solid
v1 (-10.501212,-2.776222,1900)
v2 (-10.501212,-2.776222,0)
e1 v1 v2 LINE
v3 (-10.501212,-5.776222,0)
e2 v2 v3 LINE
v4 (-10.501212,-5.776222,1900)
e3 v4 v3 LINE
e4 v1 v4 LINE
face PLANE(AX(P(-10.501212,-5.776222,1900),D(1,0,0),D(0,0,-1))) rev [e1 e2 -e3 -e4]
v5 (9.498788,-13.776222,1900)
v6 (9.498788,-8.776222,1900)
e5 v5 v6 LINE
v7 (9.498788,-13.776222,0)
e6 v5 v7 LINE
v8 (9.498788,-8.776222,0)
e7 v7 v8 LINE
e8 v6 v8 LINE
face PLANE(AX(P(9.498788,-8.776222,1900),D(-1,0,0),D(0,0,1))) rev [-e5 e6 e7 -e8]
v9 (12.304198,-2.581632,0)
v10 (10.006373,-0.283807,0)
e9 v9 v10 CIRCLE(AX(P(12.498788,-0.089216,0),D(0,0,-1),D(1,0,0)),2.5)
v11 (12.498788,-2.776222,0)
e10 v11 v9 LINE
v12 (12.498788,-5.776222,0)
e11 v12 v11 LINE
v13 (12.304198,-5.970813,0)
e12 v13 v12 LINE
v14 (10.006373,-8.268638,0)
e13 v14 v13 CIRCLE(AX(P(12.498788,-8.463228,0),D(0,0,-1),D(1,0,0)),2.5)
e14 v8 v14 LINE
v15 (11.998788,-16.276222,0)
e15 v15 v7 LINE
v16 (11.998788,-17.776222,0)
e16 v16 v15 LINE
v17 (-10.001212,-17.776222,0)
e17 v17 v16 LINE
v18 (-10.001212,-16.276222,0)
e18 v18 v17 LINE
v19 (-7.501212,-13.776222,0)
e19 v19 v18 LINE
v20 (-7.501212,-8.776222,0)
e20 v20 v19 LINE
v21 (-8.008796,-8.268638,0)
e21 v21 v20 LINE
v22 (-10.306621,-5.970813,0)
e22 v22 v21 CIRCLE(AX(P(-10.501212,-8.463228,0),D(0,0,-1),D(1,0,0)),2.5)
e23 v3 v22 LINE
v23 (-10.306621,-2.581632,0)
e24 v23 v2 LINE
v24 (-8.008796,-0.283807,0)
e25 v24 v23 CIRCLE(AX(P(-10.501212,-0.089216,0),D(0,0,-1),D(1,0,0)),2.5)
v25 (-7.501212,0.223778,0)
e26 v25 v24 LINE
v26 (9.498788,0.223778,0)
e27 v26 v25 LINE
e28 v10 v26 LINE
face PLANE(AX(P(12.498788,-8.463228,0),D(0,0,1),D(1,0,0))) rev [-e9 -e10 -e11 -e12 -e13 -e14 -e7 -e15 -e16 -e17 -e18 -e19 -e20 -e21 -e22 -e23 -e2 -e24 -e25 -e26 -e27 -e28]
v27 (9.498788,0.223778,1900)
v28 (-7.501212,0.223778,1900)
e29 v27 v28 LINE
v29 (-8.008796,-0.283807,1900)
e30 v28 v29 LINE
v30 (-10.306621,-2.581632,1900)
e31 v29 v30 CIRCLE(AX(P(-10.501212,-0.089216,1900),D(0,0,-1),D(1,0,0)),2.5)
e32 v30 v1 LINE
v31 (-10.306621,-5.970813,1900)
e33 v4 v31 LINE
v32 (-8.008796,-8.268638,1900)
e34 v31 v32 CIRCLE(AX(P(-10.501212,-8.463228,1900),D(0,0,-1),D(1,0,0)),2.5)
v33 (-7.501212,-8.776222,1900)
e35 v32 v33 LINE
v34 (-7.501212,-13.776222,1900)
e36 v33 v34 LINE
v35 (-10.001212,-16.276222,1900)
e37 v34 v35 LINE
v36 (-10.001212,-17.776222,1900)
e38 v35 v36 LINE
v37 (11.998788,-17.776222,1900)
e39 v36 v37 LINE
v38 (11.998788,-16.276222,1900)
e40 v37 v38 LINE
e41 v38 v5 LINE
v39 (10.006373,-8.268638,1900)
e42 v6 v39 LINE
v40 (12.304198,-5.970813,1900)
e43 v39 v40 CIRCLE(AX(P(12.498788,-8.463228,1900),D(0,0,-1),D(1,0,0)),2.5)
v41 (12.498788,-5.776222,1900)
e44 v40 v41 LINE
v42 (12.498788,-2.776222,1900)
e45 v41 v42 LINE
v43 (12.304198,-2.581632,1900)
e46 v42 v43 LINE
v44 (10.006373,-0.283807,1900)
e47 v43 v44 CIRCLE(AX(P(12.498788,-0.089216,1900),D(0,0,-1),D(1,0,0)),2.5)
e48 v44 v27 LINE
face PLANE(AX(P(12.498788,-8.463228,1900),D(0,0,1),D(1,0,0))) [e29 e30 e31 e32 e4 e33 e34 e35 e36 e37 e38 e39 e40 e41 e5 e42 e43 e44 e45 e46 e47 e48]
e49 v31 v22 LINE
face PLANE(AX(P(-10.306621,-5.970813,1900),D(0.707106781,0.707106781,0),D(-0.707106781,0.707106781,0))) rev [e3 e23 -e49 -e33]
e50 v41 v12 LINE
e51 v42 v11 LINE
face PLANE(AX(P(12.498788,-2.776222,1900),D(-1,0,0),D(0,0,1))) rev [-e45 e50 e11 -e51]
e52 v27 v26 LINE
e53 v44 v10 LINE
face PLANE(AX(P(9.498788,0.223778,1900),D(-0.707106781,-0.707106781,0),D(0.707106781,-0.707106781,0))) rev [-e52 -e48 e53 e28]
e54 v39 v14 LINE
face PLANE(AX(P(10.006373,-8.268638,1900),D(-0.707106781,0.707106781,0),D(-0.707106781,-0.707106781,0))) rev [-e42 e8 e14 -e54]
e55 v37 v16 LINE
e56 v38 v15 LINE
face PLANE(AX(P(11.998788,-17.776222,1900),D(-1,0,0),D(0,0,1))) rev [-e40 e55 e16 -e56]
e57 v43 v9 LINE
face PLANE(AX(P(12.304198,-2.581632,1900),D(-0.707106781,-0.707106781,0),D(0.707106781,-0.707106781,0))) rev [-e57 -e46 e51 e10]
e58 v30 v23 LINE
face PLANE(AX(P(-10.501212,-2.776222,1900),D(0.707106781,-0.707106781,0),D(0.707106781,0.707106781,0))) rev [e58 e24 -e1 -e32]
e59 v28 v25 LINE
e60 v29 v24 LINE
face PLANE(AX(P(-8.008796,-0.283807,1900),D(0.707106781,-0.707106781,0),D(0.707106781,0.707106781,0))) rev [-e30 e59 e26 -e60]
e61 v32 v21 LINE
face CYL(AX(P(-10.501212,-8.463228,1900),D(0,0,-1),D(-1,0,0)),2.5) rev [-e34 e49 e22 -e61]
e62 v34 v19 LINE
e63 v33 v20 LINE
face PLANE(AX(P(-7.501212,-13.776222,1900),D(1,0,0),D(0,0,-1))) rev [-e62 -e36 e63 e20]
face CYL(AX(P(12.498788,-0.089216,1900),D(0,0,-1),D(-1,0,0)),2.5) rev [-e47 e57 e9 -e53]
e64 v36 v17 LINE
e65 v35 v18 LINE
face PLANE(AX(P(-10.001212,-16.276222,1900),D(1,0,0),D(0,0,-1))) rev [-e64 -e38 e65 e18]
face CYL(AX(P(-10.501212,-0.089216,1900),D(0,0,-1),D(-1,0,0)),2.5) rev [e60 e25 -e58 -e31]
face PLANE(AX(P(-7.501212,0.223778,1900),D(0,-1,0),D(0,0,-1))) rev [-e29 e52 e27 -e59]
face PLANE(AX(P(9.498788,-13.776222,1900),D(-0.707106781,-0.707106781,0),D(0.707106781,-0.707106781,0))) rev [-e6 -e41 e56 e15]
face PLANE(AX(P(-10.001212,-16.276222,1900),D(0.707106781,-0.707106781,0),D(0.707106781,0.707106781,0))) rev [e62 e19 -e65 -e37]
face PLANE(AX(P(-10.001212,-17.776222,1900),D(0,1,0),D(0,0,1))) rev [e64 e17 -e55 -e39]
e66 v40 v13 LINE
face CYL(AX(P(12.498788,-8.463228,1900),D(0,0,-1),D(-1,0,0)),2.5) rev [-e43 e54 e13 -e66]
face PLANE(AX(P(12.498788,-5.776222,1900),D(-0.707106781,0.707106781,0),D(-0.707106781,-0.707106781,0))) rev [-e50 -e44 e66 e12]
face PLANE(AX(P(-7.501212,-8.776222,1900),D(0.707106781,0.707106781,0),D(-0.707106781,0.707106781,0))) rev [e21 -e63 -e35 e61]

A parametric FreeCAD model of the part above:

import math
import FreeCAD as App
import Part
import Sketcher

doc = App.newDocument("Part")
params = doc.addObject("Spreadsheet::Sheet", "Params")
for row, (alias, value) in enumerate([
    ("sketch1_radius", "2.5 mm"),
    ("sketch1_width", "22 mm"),
    ("sketch1_width2", "17 mm"),
    ("sketch1_height", "5 mm"),
    ("sketch1_height2", "3 mm"),
    ("pad1_length", "1900 mm"),
], start=1):
    params.set(f"A{row}", alias)
    params.set(f"B{row}", "=" + value)
    params.setAlias(f"B{row}", alias)

body = doc.addObject("PartDesign::Body", "Body")

# Sketch on XY plane
sketch1 = doc.addObject("Sketcher::SketchObject", "Sketch")
body.addObject(sketch1)
sketch1.AttachmentSupport = (doc.XY_Plane, [""])
sketch1.MapMode = "FlatFace"
sketch1.addGeometry(Part.LineSegment(App.Vector(-7.501212, -13.776222, 0), App.Vector(-10.001212, -16.276222, 0)), False)
sketch1.addGeometry(Part.LineSegment(App.Vector(-10.001212, -16.276222, 0), App.Vector(-10.001212, -17.776222, 0)), False)
sketch1.addGeometry(Part.LineSegment(App.Vector(-10.001212, -17.776222, 0), App.Vector(11.998788, -17.776222, 0)), False)
sketch1.addGeometry(Part.LineSegment(App.Vector(11.998788, -17.776222, 0), App.Vector(11.998788, -16.276222, 0)), False)
sketch1.addGeometry(Part.LineSegment(App.Vector(11.998788, -16.276222, 0), App.Vector(9.498788, -13.776222, 0)), False)
sketch1.addGeometry(Part.LineSegment(App.Vector(9.498788, -13.776222, 0), App.Vector(9.498788, -8.776222, 0)), False)
sketch1.addGeometry(Part.LineSegment(App.Vector(9.498788, -8.776222, 0), App.Vector(10.006373, -8.268638, 0)), False)
sketch1.addGeometry(Part.ArcOfCircle(Part.Circle(App.Vector(12.498788, -8.463228, 0), App.Vector(0, 0, 1), 2.5), math.radians(94.464198), math.radians(175.535802)), False)
sketch1.addGeometry(Part.LineSegment(App.Vector(12.304198, -5.970813, 0), App.Vector(12.498788, -5.776222, 0)), False)
sketch1.addGeometry(Part.LineSegment(App.Vector(12.498788, -5.776222, 0), App.Vector(12.498788, -2.776222, 0)), False)
sketch1.addGeometry(Part.LineSegment(App.Vector(12.498788, -2.776222, 0), App.Vector(12.304198, -2.581632, 0)), False)
sketch1.addGeometry(Part.ArcOfCircle(Part.Circle(App.Vector(12.498788, -0.089216, 0), App.Vector(0, 0, 1), 2.5), math.radians(-175.535802), math.radians(-94.464198)), False)
sketch1.addGeometry(Part.LineSegment(App.Vector(10.006373, -0.283807, 0), App.Vector(9.498788, 0.223778, 0)), False)
sketch1.addGeometry(Part.LineSegment(App.Vector(9.498788, 0.223778, 0), App.Vector(-7.501212, 0.223778, 0)), False)
sketch1.addGeometry(Part.LineSegment(App.Vector(-7.501212, 0.223778, 0), App.Vector(-8.008796, -0.283807, 0)), False)
sketch1.addGeometry(Part.ArcOfCircle(Part.Circle(App.Vector(-10.501212, -0.089216, 0), App.Vector(0, 0, 1), 2.5), math.radians(-85.535802), math.radians(-4.464198)), False)
sketch1.addGeometry(Part.LineSegment(App.Vector(-10.306621, -2.581632, 0), App.Vector(-10.501212, -2.776222, 0)), False)
sketch1.addGeometry(Part.LineSegment(App.Vector(-10.501212, -2.776222, 0), App.Vector(-10.501212, -5.776222, 0)), False)
sketch1.addGeometry(Part.LineSegment(App.Vector(-10.501212, -5.776222, 0), App.Vector(-10.306621, -5.970813, 0)), False)
sketch1.addGeometry(Part.ArcOfCircle(Part.Circle(App.Vector(-10.501212, -8.463228, 0), App.Vector(0, 0, 1), 2.5), math.radians(4.464198), math.radians(85.535802)), False)
sketch1.addGeometry(Part.LineSegment(App.Vector(-8.008796, -8.268638, 0), App.Vector(-7.501212, -8.776222, 0)), False)
sketch1.addGeometry(Part.LineSegment(App.Vector(-7.501212, -8.776222, 0), App.Vector(-7.501212, -13.776222, 0)), False)
sketch1.addConstraint(Sketcher.Constraint("Coincident", 0, 2, 1, 1))
sketch1.addConstraint(Sketcher.Constraint("Coincident", 1, 2, 2, 1))
sketch1.addConstraint(Sketcher.Constraint("Coincident", 2, 2, 3, 1))
sketch1.addConstraint(Sketcher.Constraint("Coincident", 3, 2, 4, 1))
sketch1.addConstraint(Sketcher.Constraint("Coincident", 4, 2, 5, 1))
sketch1.addConstraint(Sketcher.Constraint("Coincident", 5, 2, 6, 1))
sketch1.addConstraint(Sketcher.Constraint("Coincident", 6, 2, 7, 2))
sketch1.addConstraint(Sketcher.Constraint("Coincident", 7, 1, 8, 1))
sketch1.addConstraint(Sketcher.Constraint("Coincident", 8, 2, 9, 1))
sketch1.addConstraint(Sketcher.Constraint("Coincident", 9, 2, 10, 1))
sketch1.addConstraint(Sketcher.Constraint("Coincident", 10, 2, 11, 2))
sketch1.addConstraint(Sketcher.Constraint("Coincident", 11, 1, 12, 1))
sketch1.addConstraint(Sketcher.Constraint("Coincident", 12, 2, 13, 1))
sketch1.addConstraint(Sketcher.Constraint("Coincident", 13, 2, 14, 1))
sketch1.addConstraint(Sketcher.Constraint("Coincident", 14, 2, 15, 2))
sketch1.addConstraint(Sketcher.Constraint("Coincident", 15, 1, 16, 1))
sketch1.addConstraint(Sketcher.Constraint("Coincident", 16, 2, 17, 1))
sketch1.addConstraint(Sketcher.Constraint("Coincident", 17, 2, 18, 1))
sketch1.addConstraint(Sketcher.Constraint("Coincident", 18, 2, 19, 2))
sketch1.addConstraint(Sketcher.Constraint("Coincident", 19, 1, 20, 1))
sketch1.addConstraint(Sketcher.Constraint("Coincident", 20, 2, 21, 1))
sketch1.addConstraint(Sketcher.Constraint("Coincident", 21, 2, 0, 1))
sketch1.addConstraint(Sketcher.Constraint("Vertical", 1))
sketch1.addConstraint(Sketcher.Constraint("Horizontal", 2))
sketch1.addConstraint(Sketcher.Constraint("Vertical", 3))
sketch1.addConstraint(Sketcher.Constraint("Vertical", 5))
sketch1.addConstraint(Sketcher.Constraint("Vertical", 9))
sketch1.addConstraint(Sketcher.Constraint("Horizontal", 13))
sketch1.addConstraint(Sketcher.Constraint("Vertical", 17))
sketch1.addConstraint(Sketcher.Constraint("Vertical", 21))
sketch1.addConstraint(Sketcher.Constraint("Equal", 7, 11))
sketch1.addConstraint(Sketcher.Constraint("Equal", 11, 15))
sketch1.addConstraint(Sketcher.Constraint("Equal", 15, 19))
sketch1.addConstraint(Sketcher.Constraint("Perpendicular", 0, 4))
sketch1.addConstraint(Sketcher.Constraint("Perpendicular", 4, 6))
sketch1.addConstraint(Sketcher.Constraint("Parallel", 6, 8))
sketch1.addConstraint(Sketcher.Constraint("Perpendicular", 8, 10))
sketch1.addConstraint(Sketcher.Constraint("Parallel", 10, 12))
sketch1.addConstraint(Sketcher.Constraint("Perpendicular", 12, 14))
sketch1.addConstraint(Sketcher.Constraint("Parallel", 14, 16))
sketch1.addConstraint(Sketcher.Constraint("Perpendicular", 16, 18))
sketch1.addConstraint(Sketcher.Constraint("Parallel", 18, 20))
sketch1.addConstraint(Sketcher.Constraint("Horizontal", 11, 3, 15, 3))
sketch1.addConstraint(Sketcher.Constraint("Horizontal", 7, 3, 19, 3))
sketch1.addConstraint(Sketcher.Constraint("Horizontal", 0, 2, 3, 2))
sketch1.addConstraint(Sketcher.Constraint("Horizontal", 11, 1, 14, 2))
sketch1.addConstraint(Sketcher.Constraint("Horizontal", 10, 2, 15, 1))
sketch1.addConstraint(Sketcher.Constraint("Horizontal", 9, 2, 16, 2))
sketch1.addConstraint(Sketcher.Constraint("Horizontal", 8, 2, 17, 2))
sketch1.addConstraint(Sketcher.Constraint("Horizontal", 7, 1, 18, 2))
sketch1.addConstraint(Sketcher.Constraint("Horizontal", 6, 2, 19, 1))
sketch1.addConstraint(Sketcher.Constraint("Horizontal", 5, 2, 20, 2))
sketch1.addConstraint(Sketcher.Constraint("Horizontal", 4, 2, 21, 2))
sketch1.addConstraint(Sketcher.Constraint("Vertical", 7, 3, 11, 3))
sketch1.addConstraint(Sketcher.Constraint("Vertical", 15, 3, 19, 3))
sketch1.addConstraint(Sketcher.Constraint("Vertical", 11, 3, 8, 2))
sketch1.addConstraint(Sketcher.Constraint("Vertical", 7, 1, 10, 2))
sketch1.addConstraint(Sketcher.Constraint("Vertical", 6, 2, 11, 1))
sketch1.addConstraint(Sketcher.Constraint("Vertical", 5, 2, 12, 2))
sketch1.addConstraint(Sketcher.Constraint("Radius", 7, 2.5))
sketch1.addConstraint(Sketcher.Constraint("DistanceX", 2, 1, 2, 2, 22.0))
sketch1.addConstraint(Sketcher.Constraint("DistanceX", 13, 2, 13, 1, 17.0))
sketch1.addConstraint(Sketcher.Constraint("DistanceY", 5, 1, 5, 2, 5.0))
sketch1.addConstraint(Sketcher.Constraint("DistanceY", 9, 1, 9, 2, 3.0))
sketch1.addConstraint(Sketcher.Constraint("DistanceY", 1, 2, 1, 1, 1.5))
sketch1.addConstraint(Sketcher.Constraint("DistanceX", 15, 3, 11, 3, 23.0))
sketch1.addConstraint(Sketcher.Constraint("DistanceY", 5, 2, 8, 2, 3.0))
sketch1.addConstraint(Sketcher.Constraint("DistanceX", -1, 1, 7, 1, 12.304198))
sketch1.addConstraint(Sketcher.Constraint("DistanceX", -1, 1, 7, 3, 12.498788))
sketch1.addConstraint(Sketcher.Constraint("DistanceY", 10, 2, -1, 1, 2.581632))
sketch1.setExpression("Constraints[59]", "Params.sketch1_radius")
sketch1.setExpression("Constraints[60]", "Params.sketch1_width")
sketch1.setExpression("Constraints[61]", "Params.sketch1_width2")
sketch1.setExpression("Constraints[62]", "Params.sketch1_height")
sketch1.setExpression("Constraints[63]", "Params.sketch1_height2")
pad1 = doc.addObject("PartDesign::Pad", "Pad")
body.addObject(pad1)
pad1.Profile = sketch1
pad1.setExpression("Length", "Params.pad1_length")

doc.recompute()
